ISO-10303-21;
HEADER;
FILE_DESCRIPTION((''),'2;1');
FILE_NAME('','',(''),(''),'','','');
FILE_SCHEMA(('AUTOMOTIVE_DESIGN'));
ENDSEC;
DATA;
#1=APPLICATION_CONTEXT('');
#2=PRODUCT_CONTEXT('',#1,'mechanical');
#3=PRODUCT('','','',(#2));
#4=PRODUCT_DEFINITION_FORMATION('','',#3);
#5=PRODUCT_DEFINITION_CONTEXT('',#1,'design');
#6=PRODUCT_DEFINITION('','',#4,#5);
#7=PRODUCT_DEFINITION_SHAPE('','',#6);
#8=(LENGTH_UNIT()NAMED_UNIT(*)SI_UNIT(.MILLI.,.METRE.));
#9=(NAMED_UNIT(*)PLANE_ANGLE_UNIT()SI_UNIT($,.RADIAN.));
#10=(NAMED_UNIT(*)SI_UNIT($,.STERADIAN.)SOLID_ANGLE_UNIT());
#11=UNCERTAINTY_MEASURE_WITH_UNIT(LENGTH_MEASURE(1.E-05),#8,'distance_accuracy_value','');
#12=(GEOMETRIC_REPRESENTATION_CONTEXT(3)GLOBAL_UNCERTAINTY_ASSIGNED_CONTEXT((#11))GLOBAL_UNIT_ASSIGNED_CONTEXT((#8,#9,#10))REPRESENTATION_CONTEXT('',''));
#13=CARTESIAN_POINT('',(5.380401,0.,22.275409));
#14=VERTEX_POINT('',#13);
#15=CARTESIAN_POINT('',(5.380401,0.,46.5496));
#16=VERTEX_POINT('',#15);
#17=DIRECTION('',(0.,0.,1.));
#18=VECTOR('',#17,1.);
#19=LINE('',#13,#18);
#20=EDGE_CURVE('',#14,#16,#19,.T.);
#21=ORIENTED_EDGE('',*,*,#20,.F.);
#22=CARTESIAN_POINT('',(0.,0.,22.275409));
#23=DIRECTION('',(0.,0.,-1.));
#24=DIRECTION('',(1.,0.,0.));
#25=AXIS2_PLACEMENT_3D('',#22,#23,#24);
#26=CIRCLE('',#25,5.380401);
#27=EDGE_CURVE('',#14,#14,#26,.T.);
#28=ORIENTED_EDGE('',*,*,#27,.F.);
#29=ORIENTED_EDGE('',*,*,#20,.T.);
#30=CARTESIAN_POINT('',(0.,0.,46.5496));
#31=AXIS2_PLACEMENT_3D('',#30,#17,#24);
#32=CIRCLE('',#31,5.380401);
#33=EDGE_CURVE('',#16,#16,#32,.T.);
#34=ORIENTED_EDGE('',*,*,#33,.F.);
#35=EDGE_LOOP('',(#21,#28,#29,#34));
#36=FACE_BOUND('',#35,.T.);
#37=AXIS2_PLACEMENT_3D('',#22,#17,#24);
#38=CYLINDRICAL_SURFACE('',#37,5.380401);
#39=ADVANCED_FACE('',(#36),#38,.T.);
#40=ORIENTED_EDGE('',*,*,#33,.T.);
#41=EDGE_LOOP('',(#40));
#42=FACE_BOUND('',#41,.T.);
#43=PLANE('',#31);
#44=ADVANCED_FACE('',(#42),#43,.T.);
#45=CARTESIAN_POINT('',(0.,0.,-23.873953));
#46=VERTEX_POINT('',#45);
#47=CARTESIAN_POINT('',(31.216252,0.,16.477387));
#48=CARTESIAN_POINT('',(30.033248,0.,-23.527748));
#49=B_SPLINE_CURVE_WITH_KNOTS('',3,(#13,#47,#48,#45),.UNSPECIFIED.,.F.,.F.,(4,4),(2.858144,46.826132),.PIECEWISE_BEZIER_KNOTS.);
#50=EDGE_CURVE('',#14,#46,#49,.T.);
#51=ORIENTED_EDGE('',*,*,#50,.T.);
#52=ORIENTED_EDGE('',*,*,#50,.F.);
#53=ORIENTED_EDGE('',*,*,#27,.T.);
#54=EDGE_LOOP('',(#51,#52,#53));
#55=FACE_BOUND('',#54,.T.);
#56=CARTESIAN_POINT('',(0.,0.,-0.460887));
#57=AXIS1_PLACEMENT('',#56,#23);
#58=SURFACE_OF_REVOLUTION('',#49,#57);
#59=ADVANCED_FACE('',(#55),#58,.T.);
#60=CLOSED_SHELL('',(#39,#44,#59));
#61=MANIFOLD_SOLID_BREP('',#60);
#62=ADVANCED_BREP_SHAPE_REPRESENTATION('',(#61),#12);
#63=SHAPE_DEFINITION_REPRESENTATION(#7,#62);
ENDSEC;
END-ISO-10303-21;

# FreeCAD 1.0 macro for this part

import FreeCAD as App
import Part
import Sketcher
Q = App.Units.Quantity

doc = App.newDocument("Part")
body = doc.addObject("PartDesign::Body", "Body")

# Sketch on XZ plane
sketch1 = doc.addObject("Sketcher::SketchObject", "Sketch")
body.addObject(sketch1)
sketch1.AttachmentSupport = (doc.XZ_Plane, [""])
sketch1.MapMode = "FlatFace"
sketch1.addGeometry(Part.BSplineCurve([App.Vector(0, 22.952178, 0), App.Vector(1.907304, 22.884663, 0), App.Vector(3.700939, 22.65231, 0), App.Vector(5.380401, 22.275409, 0)], [4, 4], [0, 2.858144], False, 3, [1, 1, 1, 1], False), False)
sketch1.addGeometry(Part.LineSegment(App.Vector(0, 22.952178, 0), App.Vector(0, -23.873953, 0)), False)
sketch1.addGeometry(Part.BSplineCurve([App.Vector(5.380401, 22.275409, 0), App.Vector(31.216252, 16.477387, 0), App.Vector(30.033248, -23.527748, 0), App.Vector(0, -23.873953, 0)], [4, 4], [2.858144, 46.826132], False, 3, [1, 1, 1, 1], False), False)
sketch1.addConstraint(Sketcher.Constraint("Block", 0))
sketch1.addConstraint(Sketcher.Constraint("Block", 2))
sketch1.addConstraint(Sketcher.Constraint("Coincident", 0, 1, 1, 1))
sketch1.addConstraint(Sketcher.Constraint("Coincident", 1, 2, 2, 2))
revolution = doc.addObject("PartDesign::Revolution", "Revolution")
body.addObject(revolution)
revolution.Profile = sketch1
revolution.ReferenceAxis = (sketch1, ["V_Axis"])
revolution.Angle = 360

# Sketch on XZ plane
sketch2 = doc.addObject("Sketcher::SketchObject", "Sketch001")
body.addObject(sketch2)
sketch2.AttachmentSupport = (doc.XZ_Plane, [""])
sketch2.MapMode = "FlatFace"
sketch2.addGeometry(Part.LineSegment(App.Vector(0, 46.5496, 0), App.Vector(0, 22.952178, 0)), False)
sketch2.addGeometry(Part.BSplineCurve([App.Vector(0, 22.952178, 0), App.Vector(1.907304, 22.884663, 0), App.Vector(3.700939, 22.65231, 0), App.Vector(5.380401, 22.275409, 0)], [4, 4], [0, 2.858144], False, 3, [1, 1, 1, 1], False), False)
sketch2.addGeometry(Part.LineSegment(App.Vector(5.380401, 22.275409, 0), App.Vector(5.380401, 46.5496, 0)), False)
sketch2.addGeometry(Part.LineSegment(App.Vector(5.380401, 46.5496, 0), App.Vector(0, 46.5496, 0)), False)
sketch2.addConstraint(Sketcher.Constraint("Block", 1))
sketch2.addConstraint(Sketcher.Constraint("Coincident", 0, 2, 1, 1))
sketch2.addConstraint(Sketcher.Constraint("Coincident", 1, 2, 2, 1))
sketch2.addConstraint(Sketcher.Constraint("Coincident", 2, 2, 3, 1))
sketch2.addConstraint(Sketcher.Constraint("Coincident", 3, 2, 0, 1))
sketch2.addConstraint(Sketcher.Constraint("Vertical", 0))
sketch2.addConstraint(Sketcher.Constraint("Vertical", 2))
sketch2.addConstraint(Sketcher.Constraint("Horizontal", 3))
sketch2.addConstraint(Sketcher.Constraint("DistanceY", 0, 2, 0, 1, Q("23.597422 mm")))
revolution2 = doc.addObject("PartDesign::Revolution", "Revolution001")
body.addObject(revolution2)
revolution2.Profile = sketch2
revolution2.ReferenceAxis = (sketch2, ["V_Axis"])
revolution2.Angle = 360

doc.recompute()
